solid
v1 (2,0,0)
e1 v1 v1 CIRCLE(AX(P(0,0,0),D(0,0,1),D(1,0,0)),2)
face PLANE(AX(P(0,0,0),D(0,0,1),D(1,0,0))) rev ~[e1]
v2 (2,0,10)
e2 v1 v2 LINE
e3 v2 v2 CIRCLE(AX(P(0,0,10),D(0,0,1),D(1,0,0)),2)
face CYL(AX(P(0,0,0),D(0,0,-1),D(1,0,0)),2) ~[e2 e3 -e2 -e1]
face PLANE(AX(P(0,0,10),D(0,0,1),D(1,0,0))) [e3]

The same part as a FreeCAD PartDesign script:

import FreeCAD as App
import Part
import Sketcher
Q = App.Units.Quantity

doc = App.newDocument("Part")
body = doc.addObject("PartDesign::Body", "Body")

# Sketch on XY plane
sketch1 = body.newObject("Sketcher::SketchObject", "Sketch")
sketch1.AttachmentSupport = (doc.getObject("XY_Plane"), [""])
sketch1.MapMode = "FlatFace"
sketch1.addGeometry(Part.Circle(App.Vector(0, 0, 0), App.Vector(0, 0, 1), 2), False)
sketch1.addConstraint([
    Sketcher.Constraint("Coincident", 0, 3, -1, 1),
    Sketcher.Constraint("Diameter", 0, Q("4 mm")),
])
pad1 = body.newObject("PartDesign::Pad", "Pad")
pad1.Profile = sketch1
pad1.Length = 10

doc.recompute()
